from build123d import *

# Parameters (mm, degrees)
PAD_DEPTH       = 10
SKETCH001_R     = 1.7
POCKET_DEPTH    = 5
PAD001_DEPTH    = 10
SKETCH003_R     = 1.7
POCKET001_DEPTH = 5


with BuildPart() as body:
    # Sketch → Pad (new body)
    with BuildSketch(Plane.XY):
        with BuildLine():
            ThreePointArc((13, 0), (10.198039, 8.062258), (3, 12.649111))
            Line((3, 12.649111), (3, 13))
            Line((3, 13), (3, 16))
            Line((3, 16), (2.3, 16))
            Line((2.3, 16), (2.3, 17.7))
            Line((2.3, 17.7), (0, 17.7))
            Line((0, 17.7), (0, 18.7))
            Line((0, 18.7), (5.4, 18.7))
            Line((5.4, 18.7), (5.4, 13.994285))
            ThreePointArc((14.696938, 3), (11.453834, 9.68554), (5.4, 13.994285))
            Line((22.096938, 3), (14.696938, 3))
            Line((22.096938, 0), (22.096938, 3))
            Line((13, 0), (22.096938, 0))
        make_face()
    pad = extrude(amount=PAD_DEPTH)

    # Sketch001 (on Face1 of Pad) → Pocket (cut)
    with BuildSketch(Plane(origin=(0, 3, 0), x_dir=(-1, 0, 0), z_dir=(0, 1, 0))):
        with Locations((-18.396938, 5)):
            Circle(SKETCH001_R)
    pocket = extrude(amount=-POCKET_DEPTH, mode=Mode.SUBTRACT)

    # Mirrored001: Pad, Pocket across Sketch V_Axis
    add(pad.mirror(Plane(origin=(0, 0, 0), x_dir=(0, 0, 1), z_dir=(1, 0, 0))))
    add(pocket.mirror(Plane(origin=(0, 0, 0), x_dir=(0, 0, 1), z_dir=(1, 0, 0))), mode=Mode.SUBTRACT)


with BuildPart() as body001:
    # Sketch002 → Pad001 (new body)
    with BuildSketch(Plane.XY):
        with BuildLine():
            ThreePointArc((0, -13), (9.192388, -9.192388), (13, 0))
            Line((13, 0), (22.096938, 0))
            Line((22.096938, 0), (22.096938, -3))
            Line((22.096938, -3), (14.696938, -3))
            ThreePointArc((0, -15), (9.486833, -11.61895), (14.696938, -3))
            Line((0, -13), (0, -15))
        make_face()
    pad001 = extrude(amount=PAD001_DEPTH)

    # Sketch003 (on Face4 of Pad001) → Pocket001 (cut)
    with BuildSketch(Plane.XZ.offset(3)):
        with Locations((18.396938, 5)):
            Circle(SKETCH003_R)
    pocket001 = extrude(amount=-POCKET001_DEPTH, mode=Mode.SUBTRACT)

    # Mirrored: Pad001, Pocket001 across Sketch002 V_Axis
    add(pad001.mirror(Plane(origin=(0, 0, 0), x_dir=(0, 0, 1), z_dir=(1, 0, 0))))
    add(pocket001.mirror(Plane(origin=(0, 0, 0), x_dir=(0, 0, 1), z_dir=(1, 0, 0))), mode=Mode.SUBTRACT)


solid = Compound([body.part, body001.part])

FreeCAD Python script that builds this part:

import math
import FreeCAD as App
import Part
import Sketcher
from FreeCAD import Vector
Q = App.Units.Quantity

doc = App.newDocument("Part")
body = doc.addObject("PartDesign::Body", "Body")

# Sketch on XY plane
sketch1 = doc.addObject("Sketcher::SketchObject", "Sketch")
body.addObject(sketch1)
sketch1.AttachmentSupport = (doc.XY_Plane, [""])
sketch1.MapMode = "FlatFace"
sketch1.addGeometry([
    Part.ArcOfCircle(Part.Circle(Vector(0, 0, 0), Vector(0, 0, 1), 13), math.radians(0), math.radians(76.657635)),  # 0
    Part.LineSegment(Vector(13, 0, 0), Vector(22.096938, 0, 0)),  # 1
    Part.LineSegment(Vector(22.096938, 0, 0), Vector(22.096938, 3, 0)),  # 2
    Part.LineSegment(Vector(22.096938, 3, 0), Vector(14.696938, 3, 0)),  # 3
    Part.ArcOfCircle(Part.Circle(Vector(-0.000001, 0, 0), Vector(0, 0, 1), 15), math.radians(11.536957), math.radians(68.899801)),  # 4
    Part.LineSegment(Vector(5.4, 13.994285, 0), Vector(5.4, 18.7, 0)),  # 5
    Part.LineSegment(Vector(5.4, 18.7, 0), Vector(0, 18.7, 0)),  # 6
    Part.LineSegment(Vector(0, 18.7, 0), Vector(0, 17.7, 0)),  # 7
    Part.LineSegment(Vector(0, 17.7, 0), Vector(2.3, 17.7, 0)),  # 8
    Part.LineSegment(Vector(2.3, 17.7, 0), Vector(2.3, 16, 0)),  # 9
    Part.LineSegment(Vector(2.3, 16, 0), Vector(3, 16, 0)),  # 10
    Part.LineSegment(Vector(3, 16, 0), Vector(3, 12.649111, 0)),  # 11
], False)
sketch1.addConstraint([
    Sketcher.Constraint("Coincident", 0, 1, 1, 1),
    Sketcher.Constraint("Coincident", 1, 2, 2, 1),
    Sketcher.Constraint("Coincident", 2, 2, 3, 1),
    Sketcher.Constraint("Coincident", 3, 2, 4, 1),
    Sketcher.Constraint("Coincident", 4, 2, 5, 1),
    Sketcher.Constraint("Coincident", 5, 2, 6, 1),
    Sketcher.Constraint("Coincident", 6, 2, 7, 1),
    Sketcher.Constraint("Coincident", 7, 2, 8, 1),
    Sketcher.Constraint("Coincident", 8, 2, 9, 1),
    Sketcher.Constraint("Coincident", 9, 2, 10, 1),
    Sketcher.Constraint("Coincident", 10, 2, 11, 1),
    Sketcher.Constraint("Coincident", 11, 2, 0, 2),
    Sketcher.Constraint("Horizontal", 1),
    Sketcher.Constraint("Vertical", 2),
    Sketcher.Constraint("Horizontal", 3),
    Sketcher.Constraint("Vertical", 5),
    Sketcher.Constraint("Horizontal", 6),
    Sketcher.Constraint("Vertical", 7),
    Sketcher.Constraint("Horizontal", 8),
    Sketcher.Constraint("Vertical", 9),
    Sketcher.Constraint("Horizontal", 10),
    Sketcher.Constraint("Vertical", 11),
    Sketcher.Constraint("Coincident", 0, 3, -1, 1),
    Sketcher.Constraint("Coincident", 4, 3, -1, 1),
    Sketcher.Constraint("PointOnObject", 0, 1, -1),
    Sketcher.Constraint("PointOnObject", 6, 2, -2),
    Sketcher.Constraint("Radius", 0, Q("13 mm")),
    Sketcher.Constraint("Radius", 4, Q("15 mm")),
    Sketcher.Constraint("DistanceY", 2, 1, 2, 2, Q("3 mm")),
    Sketcher.Constraint("DistanceY", 7, 2, 7, 1, Q("1 mm")),
    Sketcher.Constraint("DistanceX", 3, 2, 3, 1, Q("7.4 mm")),
    Sketcher.Constraint("DistanceX", 6, 2, 6, 1, Q("5.4 mm")),
    Sketcher.Constraint("DistanceX", 8, 1, 8, 2, Q("2.3 mm")),
    Sketcher.Constraint("DistanceX", 10, 1, 10, 2, Q("0.7 mm")),
    Sketcher.Constraint("DistanceY", 9, 2, 9, 1, Q("1.7 mm")),
    Sketcher.Constraint("DistanceY", -1, 1, 9, 2, Q("16 mm")),
])
pad1 = doc.addObject("PartDesign::Pad", "Pad")
body.addObject(pad1)
pad1.Profile = sketch1
pad1.Length = 10

# Sketch on XZ plane
sketch2 = doc.addObject("Sketcher::SketchObject", "Sketch001")
body.addObject(sketch2)
sketch2.AttachmentSupport = (doc.XZ_Plane, [""])
sketch2.MapMode = "FlatFace"
sketch2.AttachmentOffset = App.Placement(Vector(0, 0, -3), App.Rotation())
sketch2.addGeometry(Part.Circle(Vector(18.396938, 5, 0), Vector(0, 0, 1), 1.7), False)
sketch2.addConstraint([
    Sketcher.Constraint("Diameter", 0, Q("3.4 mm")),
    Sketcher.Constraint("DistanceY", -1, 1, 0, 3, Q("5 mm")),
    Sketcher.Constraint("DistanceX", -1, 1, 0, 3, Q("18.396938 mm")),
])
pocket1 = doc.addObject("PartDesign::Pocket", "Pocket")
body.addObject(pocket1)
pocket1.Profile = sketch2
pocket1.Length = 5
pocket1.Reversed = True
doc.recompute()

mirrored = doc.addObject("PartDesign::Mirrored", "Mirrored")
body.addObject(mirrored)
mirrored.Originals = [pad1, pocket1]
mirrored.MirrorPlane = (doc.YZ_Plane, [""])
body.Tip = mirrored
body2 = doc.addObject("PartDesign::Body", "Body001")

# Sketch on XY plane
sketch3 = doc.addObject("Sketcher::SketchObject", "Sketch002")
body2.addObject(sketch3)
sketch3.AttachmentSupport = (doc.getObject("XY_Plane001"), [""])
sketch3.MapMode = "FlatFace"
sketch3.addGeometry([
    Part.ArcOfCircle(Part.Circle(Vector(-0.000001, 0.000001, 0), Vector(0, 0, 1), 13.000001), math.radians(-89.999998), math.radians(-0.000002)),  # 0
    Part.LineSegment(Vector(0, -13, 0), Vector(0, -15, 0)),  # 1
    Part.ArcOfCircle(Part.Circle(Vector(0, -0.000001, 0), Vector(0, 0, 1), 14.999999), math.radians(-90.000001), math.radians(-11.536956)),  # 2
    Part.LineSegment(Vector(14.696938, -3, 0), Vector(22.096938, -3, 0)),  # 3
    Part.LineSegment(Vector(22.096938, -3, 0), Vector(22.096938, 0, 0)),  # 4
    Part.LineSegment(Vector(22.096938, 0, 0), Vector(13, 0, 0)),  # 5
], False)
sketch3.addConstraint([
    Sketcher.Constraint("Coincident", 0, 1, 1, 1),
    Sketcher.Constraint("Coincident", 1, 2, 2, 1),
    Sketcher.Constraint("Coincident", 2, 2, 3, 1),
    Sketcher.Constraint("Coincident", 3, 2, 4, 1),
    Sketcher.Constraint("Coincident", 4, 2, 5, 1),
    Sketcher.Constraint("Coincident", 5, 2, 0, 2),
    Sketcher.Constraint("Vertical", 1),
    Sketcher.Constraint("Horizontal", 3),
    Sketcher.Constraint("Vertical", 4),
    Sketcher.Constraint("Horizontal", 5),
    Sketcher.Constraint("Coincident", 0, 3, -1, 1),
    Sketcher.Constraint("Coincident", 2, 3, -1, 1),
    Sketcher.Constraint("PointOnObject", 0, 1, -2),
    Sketcher.Constraint("PointOnObject", 4, 2, -1),
    Sketcher.Constraint("Radius", 0, Q("13.000001 mm")),
    Sketcher.Constraint("Radius", 2, Q("14.999999 mm")),
    Sketcher.Constraint("DistanceY", 4, 1, 4, 2, Q("3 mm")),
    Sketcher.Constraint("DistanceX", 3, 1, 3, 2, Q("7.4 mm")),
])
pad2 = doc.addObject("PartDesign::Pad", "Pad001")
body2.addObject(pad2)
pad2.Profile = sketch3
pad2.Length = 10

# Sketch on XZ plane
sketch4 = doc.addObject("Sketcher::SketchObject", "Sketch003")
body2.addObject(sketch4)
sketch4.AttachmentSupport = (doc.getObject("XZ_Plane001"), [""])
sketch4.MapMode = "FlatFace"
sketch4.AttachmentOffset = App.Placement(Vector(0, 0, 3), App.Rotation())
sketch4.addGeometry(Part.Circle(Vector(18.396938, 5, 0), Vector(0, 0, 1), 1.7), False)
sketch4.addConstraint([
    Sketcher.Constraint("Diameter", 0, Q("3.4 mm")),
    Sketcher.Constraint("DistanceY", -1, 1, 0, 3, Q("5 mm")),
    Sketcher.Constraint("DistanceX", -1, 1, 0, 3, Q("18.396938 mm")),
])
pocket2 = doc.addObject("PartDesign::Pocket", "Pocket001")
body2.addObject(pocket2)
pocket2.Profile = sketch4
pocket2.Length = 5
doc.recompute()

mirrored2 = doc.addObject("PartDesign::Mirrored", "Mirrored001")
body2.addObject(mirrored2)
mirrored2.Originals = [pad2, pocket2]
mirrored2.MirrorPlane = (doc.getObject("YZ_Plane001"), [""])
body2.Tip = mirrored2

doc.recompute()
